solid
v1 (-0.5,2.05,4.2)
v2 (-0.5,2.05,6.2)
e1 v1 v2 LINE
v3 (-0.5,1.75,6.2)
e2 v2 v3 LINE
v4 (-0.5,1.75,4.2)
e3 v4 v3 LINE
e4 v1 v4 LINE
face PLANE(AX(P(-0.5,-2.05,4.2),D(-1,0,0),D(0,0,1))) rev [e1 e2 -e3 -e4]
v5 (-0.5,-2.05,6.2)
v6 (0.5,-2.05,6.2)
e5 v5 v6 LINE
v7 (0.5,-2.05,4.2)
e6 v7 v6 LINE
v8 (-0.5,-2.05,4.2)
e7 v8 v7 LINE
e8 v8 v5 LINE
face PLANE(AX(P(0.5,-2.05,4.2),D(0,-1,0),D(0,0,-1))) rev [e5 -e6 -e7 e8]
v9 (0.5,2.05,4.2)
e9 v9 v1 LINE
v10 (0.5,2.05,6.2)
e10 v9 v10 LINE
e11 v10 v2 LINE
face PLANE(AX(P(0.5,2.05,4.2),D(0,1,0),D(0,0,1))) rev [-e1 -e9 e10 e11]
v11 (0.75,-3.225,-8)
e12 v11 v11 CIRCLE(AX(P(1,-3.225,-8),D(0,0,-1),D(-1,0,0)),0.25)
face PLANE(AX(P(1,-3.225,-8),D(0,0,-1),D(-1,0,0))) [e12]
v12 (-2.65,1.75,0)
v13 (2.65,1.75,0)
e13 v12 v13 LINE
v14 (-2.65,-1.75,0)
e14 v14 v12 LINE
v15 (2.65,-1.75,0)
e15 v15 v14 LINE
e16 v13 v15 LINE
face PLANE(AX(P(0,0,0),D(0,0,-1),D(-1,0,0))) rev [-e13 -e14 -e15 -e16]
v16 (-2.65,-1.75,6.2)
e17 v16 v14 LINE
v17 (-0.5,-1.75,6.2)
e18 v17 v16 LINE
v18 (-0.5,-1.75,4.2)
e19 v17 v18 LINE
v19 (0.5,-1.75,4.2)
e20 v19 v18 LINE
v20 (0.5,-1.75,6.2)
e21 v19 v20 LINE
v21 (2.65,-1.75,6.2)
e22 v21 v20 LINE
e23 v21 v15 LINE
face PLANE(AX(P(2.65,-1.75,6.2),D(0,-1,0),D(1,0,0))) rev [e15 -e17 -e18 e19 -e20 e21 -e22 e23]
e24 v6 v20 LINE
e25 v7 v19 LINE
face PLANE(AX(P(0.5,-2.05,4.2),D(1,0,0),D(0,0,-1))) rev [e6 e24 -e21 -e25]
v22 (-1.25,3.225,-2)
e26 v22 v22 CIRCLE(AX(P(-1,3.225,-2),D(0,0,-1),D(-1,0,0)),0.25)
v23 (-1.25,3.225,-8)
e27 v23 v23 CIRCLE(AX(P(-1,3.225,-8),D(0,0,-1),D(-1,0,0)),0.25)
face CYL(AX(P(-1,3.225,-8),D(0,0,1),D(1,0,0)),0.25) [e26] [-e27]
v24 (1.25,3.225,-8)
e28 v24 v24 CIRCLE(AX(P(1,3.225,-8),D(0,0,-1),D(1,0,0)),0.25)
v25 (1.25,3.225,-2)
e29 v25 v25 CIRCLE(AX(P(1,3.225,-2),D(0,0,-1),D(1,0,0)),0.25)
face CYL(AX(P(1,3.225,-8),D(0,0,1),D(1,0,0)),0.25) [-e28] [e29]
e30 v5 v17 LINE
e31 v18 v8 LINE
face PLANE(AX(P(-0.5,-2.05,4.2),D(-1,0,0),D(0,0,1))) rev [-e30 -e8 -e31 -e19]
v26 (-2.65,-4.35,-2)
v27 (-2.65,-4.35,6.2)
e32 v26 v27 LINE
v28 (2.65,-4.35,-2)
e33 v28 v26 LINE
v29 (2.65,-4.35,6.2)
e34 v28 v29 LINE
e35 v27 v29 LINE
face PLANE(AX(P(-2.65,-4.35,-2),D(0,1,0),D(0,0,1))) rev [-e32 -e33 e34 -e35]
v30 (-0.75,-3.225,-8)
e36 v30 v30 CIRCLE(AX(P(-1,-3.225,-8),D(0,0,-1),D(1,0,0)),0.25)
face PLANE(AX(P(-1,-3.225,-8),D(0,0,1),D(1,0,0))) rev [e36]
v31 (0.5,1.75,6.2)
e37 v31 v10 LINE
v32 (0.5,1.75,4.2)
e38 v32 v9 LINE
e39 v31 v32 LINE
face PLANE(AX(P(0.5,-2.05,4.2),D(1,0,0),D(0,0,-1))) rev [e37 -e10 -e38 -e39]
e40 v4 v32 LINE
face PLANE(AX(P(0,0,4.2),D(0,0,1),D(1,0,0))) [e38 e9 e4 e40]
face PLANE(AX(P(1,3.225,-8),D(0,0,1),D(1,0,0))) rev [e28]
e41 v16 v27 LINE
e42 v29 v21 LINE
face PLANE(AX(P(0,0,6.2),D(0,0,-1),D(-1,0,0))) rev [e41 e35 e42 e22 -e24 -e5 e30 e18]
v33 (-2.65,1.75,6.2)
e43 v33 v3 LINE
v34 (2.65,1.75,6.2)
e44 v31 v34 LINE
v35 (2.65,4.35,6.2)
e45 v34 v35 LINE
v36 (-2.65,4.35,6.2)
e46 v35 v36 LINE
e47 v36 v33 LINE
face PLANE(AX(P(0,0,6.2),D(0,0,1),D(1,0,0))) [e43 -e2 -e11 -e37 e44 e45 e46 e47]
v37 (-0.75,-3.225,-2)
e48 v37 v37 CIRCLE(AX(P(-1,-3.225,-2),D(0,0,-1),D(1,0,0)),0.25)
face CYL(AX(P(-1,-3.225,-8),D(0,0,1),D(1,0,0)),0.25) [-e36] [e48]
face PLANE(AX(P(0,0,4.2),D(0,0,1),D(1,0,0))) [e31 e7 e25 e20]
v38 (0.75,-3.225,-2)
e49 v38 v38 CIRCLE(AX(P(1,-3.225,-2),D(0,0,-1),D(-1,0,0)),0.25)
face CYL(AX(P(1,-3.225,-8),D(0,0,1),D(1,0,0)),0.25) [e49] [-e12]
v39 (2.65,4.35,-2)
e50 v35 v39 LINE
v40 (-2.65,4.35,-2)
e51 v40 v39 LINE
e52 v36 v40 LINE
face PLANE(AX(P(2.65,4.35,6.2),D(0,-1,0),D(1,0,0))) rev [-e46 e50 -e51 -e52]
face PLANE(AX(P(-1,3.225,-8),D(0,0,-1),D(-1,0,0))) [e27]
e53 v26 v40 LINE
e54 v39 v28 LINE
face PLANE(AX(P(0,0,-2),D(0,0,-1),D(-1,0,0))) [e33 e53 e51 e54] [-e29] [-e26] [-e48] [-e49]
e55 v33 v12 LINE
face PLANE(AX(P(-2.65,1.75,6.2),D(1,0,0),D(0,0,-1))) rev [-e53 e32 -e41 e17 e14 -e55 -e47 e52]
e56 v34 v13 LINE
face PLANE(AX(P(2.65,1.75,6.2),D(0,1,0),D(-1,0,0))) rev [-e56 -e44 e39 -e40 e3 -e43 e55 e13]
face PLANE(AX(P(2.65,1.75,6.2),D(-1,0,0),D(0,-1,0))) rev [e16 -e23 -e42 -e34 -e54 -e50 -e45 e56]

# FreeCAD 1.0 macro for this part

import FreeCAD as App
import Part
import Sketcher
from FreeCAD import Vector
Q = App.Units.Quantity

doc = App.newDocument("Part")
body = doc.addObject("PartDesign::Body", "Body")

sketch1 = body.newObject("Sketcher::SketchObject", "Sketch")
sketch1.AttachmentSupport = (doc.getObject("XY_Plane"), [""])
sketch1.MapMode = "FlatFace"
sketch1.addGeometry(Part.LineSegment(Vector(-2.6, 4.3, 0), Vector(-2.6, 1.8, 0)), False)
sketch1.addGeometry(Part.LineSegment(Vector(-2.6, 1.8, 0), Vector(2.6, 1.8, 0)), False)
sketch1.addGeometry(Part.LineSegment(Vector(2.6, 1.8, 0), Vector(2.6, 4.3, 0)), False)
sketch1.addGeometry(Part.LineSegment(Vector(2.6, 4.3, 0), Vector(-2.6, 4.3, 0)), False)
sketch1.addConstraint(Sketcher.Constraint("Coincident", 0, 2, 1, 1))
sketch1.addConstraint(Sketcher.Constraint("Coincident", 1, 2, 2, 1))
sketch1.addConstraint(Sketcher.Constraint("Coincident", 2, 2, 3, 1))
sketch1.addConstraint(Sketcher.Constraint("Coincident", 3, 2, 0, 1))
sketch1.addConstraint(Sketcher.Constraint("Vertical", 0))
sketch1.addConstraint(Sketcher.Constraint("Horizontal", 1))
sketch1.addConstraint(Sketcher.Constraint("Vertical", 2))
sketch1.addConstraint(Sketcher.Constraint("Horizontal", 3))
sketch1.addConstraint(Sketcher.Constraint("DistanceX", 1, 1, 1, 2, Q("5.3 mm")))
sketch1.addConstraint(Sketcher.Constraint("DistanceY", 0, 2, 0, 1, Q("2.6 mm")))
sketch1.addConstraint(Sketcher.Constraint("DistanceX", 0, 2, -1, 1, Q("2.65 mm")))
sketch1.addConstraint(Sketcher.Constraint("DistanceY", -1, 1, 0, 2, Q("1.75 mm")))
pad1 = body.newObject("PartDesign::Pad", "Pad")
pad1.Profile = sketch1
pad1.Length = 6.2
body2 = doc.addObject("PartDesign::Body", "Body001")

sketch2 = body2.newObject("Sketcher::SketchObject", "Sketch001")
sketch2.AttachmentSupport = (doc.getObject("XY_Plane001"), [""])
sketch2.MapMode = "FlatFace"
sketch2.addGeometry(Part.LineSegment(Vector(-2.6, -1.8, 0), Vector(-2.6, -4.3, 0)), False)
sketch2.addGeometry(Part.LineSegment(Vector(-2.6, -4.3, 0), Vector(2.6, -4.3, 0)), False)
sketch2.addGeometry(Part.LineSegment(Vector(2.6, -4.3, 0), Vector(2.6, -1.8, 0)), False)
sketch2.addGeometry(Part.LineSegment(Vector(2.6, -1.8, 0), Vector(-2.6, -1.8, 0)), False)
sketch2.addConstraint(Sketcher.Constraint("Coincident", 0, 2, 1, 1))
sketch2.addConstraint(Sketcher.Constraint("Coincident", 1, 2, 2, 1))
sketch2.addConstraint(Sketcher.Constraint("Coincident", 2, 2, 3, 1))
sketch2.addConstraint(Sketcher.Constraint("Coincident", 3, 2, 0, 1))
sketch2.addConstraint(Sketcher.Constraint("Vertical", 0))
sketch2.addConstraint(Sketcher.Constraint("Horizontal", 1))
sketch2.addConstraint(Sketcher.Constraint("Vertical", 2))
sketch2.addConstraint(Sketcher.Constraint("Horizontal", 3))
sketch2.addConstraint(Sketcher.Constraint("DistanceX", 1, 1, 1, 2, Q("5.3 mm")))
sketch2.addConstraint(Sketcher.Constraint("DistanceY", 0, 2, 0, 1, Q("2.6 mm")))
sketch2.addConstraint(Sketcher.Constraint("DistanceX", 0, 2, -1, 1, Q("2.65 mm")))
sketch2.addConstraint(Sketcher.Constraint("DistanceY", 0, 2, -1, 1, Q("4.35 mm")))
pad2 = body2.newObject("PartDesign::Pad", "Pad001")
pad2.Profile = sketch2
pad2.Length = 6.2
body.AllowCompound = True
doc.recompute()

boolean = body.newObject("PartDesign::Boolean", "Boolean")
boolean.Type = "Fuse"
boolean.addObjects([body2])

sketch3 = body.newObject("Sketcher::SketchObject", "Sketch002")
sketch3.AttachmentSupport = (doc.getObject("XY_Plane"), [""])
sketch3.MapMode = "FlatFace"
sketch3.addGeometry(Part.LineSegment(Vector(3, 4, 0), Vector(3, -4, 0)), False)
sketch3.addGeometry(Part.LineSegment(Vector(3, -4, 0), Vector(-3, -4, 0)), False)
sketch3.addGeometry(Part.LineSegment(Vector(-3, -4, 0), Vector(-3, 4, 0)), False)
sketch3.addGeometry(Part.LineSegment(Vector(-3, 4, 0), Vector(3, 4, 0)), False)
sketch3.addConstraint(Sketcher.Constraint("Coincident", 0, 2, 1, 1))
sketch3.addConstraint(Sketcher.Constraint("Coincident", 1, 2, 2, 1))
sketch3.addConstraint(Sketcher.Constraint("Coincident", 2, 2, 3, 1))
sketch3.addConstraint(Sketcher.Constraint("Coincident", 3, 2, 0, 1))
sketch3.addConstraint(Sketcher.Constraint("Vertical", 0))
sketch3.addConstraint(Sketcher.Constraint("Horizontal", 1))
sketch3.addConstraint(Sketcher.Constraint("Vertical", 2))
sketch3.addConstraint(Sketcher.Constraint("Horizontal", 3))
sketch3.addConstraint(Sketcher.Constraint("Symmetric", 0, 2, 2, 2, -1, 1))
sketch3.addConstraint(Sketcher.Constraint("DistanceX", 1, 2, 1, 1, Q("5.3 mm")))
sketch3.addConstraint(Sketcher.Constraint("DistanceY", 0, 2, 0, 1, Q("8.7 mm")))
pad3 = body.newObject("PartDesign::Pad", "Pad002")
pad3.Profile = sketch3
pad3.Length = 2
pad3.Reversed = True

sketch4 = body.newObject("Sketcher::SketchObject", "Sketch003")
sketch4.AttachmentSupport = (doc.getObject("XY_Plane"), [""])
sketch4.MapMode = "FlatFace"
sketch4.AttachmentOffset = App.Placement(Vector(0, 0, 6.2), App.Rotation())
sketch4.addGeometry(Part.LineSegment(Vector(-0.5, 2, 0), Vector(-0.5, -2, 0)), False)
sketch4.addGeometry(Part.LineSegment(Vector(-0.5, -2, 0), Vector(0.5, -2, 0)), False)
sketch4.addGeometry(Part.LineSegment(Vector(0.5, -2, 0), Vector(0.5, 2, 0)), False)
sketch4.addGeometry(Part.LineSegment(Vector(0.5, 2, 0), Vector(-0.5, 2, 0)), False)
sketch4.addConstraint(Sketcher.Constraint("Coincident", 0, 2, 1, 1))
sketch4.addConstraint(Sketcher.Constraint("Coincident", 1, 2, 2, 1))
sketch4.addConstraint(Sketcher.Constraint("Coincident", 2, 2, 3, 1))
sketch4.addConstraint(Sketcher.Constraint("Coincident", 3, 2, 0, 1))
sketch4.addConstraint(Sketcher.Constraint("Vertical", 0))
sketch4.addConstraint(Sketcher.Constraint("Horizontal", 1))
sketch4.addConstraint(Sketcher.Constraint("Vertical", 2))
sketch4.addConstraint(Sketcher.Constraint("Horizontal", 3))
sketch4.addConstraint(Sketcher.Constraint("Symmetric", 0, 2, 2, 2, -1, 1))
sketch4.addConstraint(Sketcher.Constraint("DistanceX", 1, 1, 1, 2, Q("1 mm")))
sketch4.addConstraint(Sketcher.Constraint("DistanceY", 0, 2, 0, 1, Q("4.1 mm")))
pocket1 = body.newObject("PartDesign::Pocket", "Pocket")
pocket1.Profile = sketch4
pocket1.Length = 2

sketch5 = body.newObject("Sketcher::SketchObject", "Sketch004")
sketch5.AttachmentSupport = (doc.getObject("XY_Plane"), [""])
sketch5.MapMode = "FlatFace"
sketch5.AttachmentOffset = App.Placement(Vector(0, 0, -2), App.Rotation())
sketch5.addGeometry(Part.Circle(Vector(1, -3.23, 0), Vector(0, 0, 1), 0.25), False)
sketch5.addGeometry(Part.Circle(Vector(-1, -3.23, 0), Vector(0, 0, 1), 0.25), False)
sketch5.addGeometry(Part.Circle(Vector(-1, 3.23, 0), Vector(0, 0, 1), 0.25), False)
sketch5.addGeometry(Part.Circle(Vector(1, 3.23, 0), Vector(0, 0, 1), 0.25), False)
sketch5.addConstraint(Sketcher.Constraint("Equal", 0, 1))
sketch5.addConstraint(Sketcher.Constraint("Equal", 1, 2))
sketch5.addConstraint(Sketcher.Constraint("Equal", 2, 3))
sketch5.addConstraint(Sketcher.Constraint("Symmetric", 0, 3, 2, 3, -1, 1))
sketch5.addConstraint(Sketcher.Constraint("Symmetric", 1, 3, 3, 3, -1, 1))
sketch5.addConstraint(Sketcher.Constraint("Symmetric", 0, 3, 1, 3, -2))
sketch5.addConstraint(Sketcher.Constraint("Diameter", 0, Q("0.5 mm")))
sketch5.addConstraint(Sketcher.Constraint("DistanceX", -1, 1, 0, 3, Q("1 mm")))
sketch5.addConstraint(Sketcher.Constraint("DistanceY", 1, 3, 2, 3, Q("6.45 mm")))
pad4 = body.newObject("PartDesign::Pad", "Pad003")
pad4.Profile = sketch5
pad4.Length = 6
pad4.Reversed = True

doc.recompute()
